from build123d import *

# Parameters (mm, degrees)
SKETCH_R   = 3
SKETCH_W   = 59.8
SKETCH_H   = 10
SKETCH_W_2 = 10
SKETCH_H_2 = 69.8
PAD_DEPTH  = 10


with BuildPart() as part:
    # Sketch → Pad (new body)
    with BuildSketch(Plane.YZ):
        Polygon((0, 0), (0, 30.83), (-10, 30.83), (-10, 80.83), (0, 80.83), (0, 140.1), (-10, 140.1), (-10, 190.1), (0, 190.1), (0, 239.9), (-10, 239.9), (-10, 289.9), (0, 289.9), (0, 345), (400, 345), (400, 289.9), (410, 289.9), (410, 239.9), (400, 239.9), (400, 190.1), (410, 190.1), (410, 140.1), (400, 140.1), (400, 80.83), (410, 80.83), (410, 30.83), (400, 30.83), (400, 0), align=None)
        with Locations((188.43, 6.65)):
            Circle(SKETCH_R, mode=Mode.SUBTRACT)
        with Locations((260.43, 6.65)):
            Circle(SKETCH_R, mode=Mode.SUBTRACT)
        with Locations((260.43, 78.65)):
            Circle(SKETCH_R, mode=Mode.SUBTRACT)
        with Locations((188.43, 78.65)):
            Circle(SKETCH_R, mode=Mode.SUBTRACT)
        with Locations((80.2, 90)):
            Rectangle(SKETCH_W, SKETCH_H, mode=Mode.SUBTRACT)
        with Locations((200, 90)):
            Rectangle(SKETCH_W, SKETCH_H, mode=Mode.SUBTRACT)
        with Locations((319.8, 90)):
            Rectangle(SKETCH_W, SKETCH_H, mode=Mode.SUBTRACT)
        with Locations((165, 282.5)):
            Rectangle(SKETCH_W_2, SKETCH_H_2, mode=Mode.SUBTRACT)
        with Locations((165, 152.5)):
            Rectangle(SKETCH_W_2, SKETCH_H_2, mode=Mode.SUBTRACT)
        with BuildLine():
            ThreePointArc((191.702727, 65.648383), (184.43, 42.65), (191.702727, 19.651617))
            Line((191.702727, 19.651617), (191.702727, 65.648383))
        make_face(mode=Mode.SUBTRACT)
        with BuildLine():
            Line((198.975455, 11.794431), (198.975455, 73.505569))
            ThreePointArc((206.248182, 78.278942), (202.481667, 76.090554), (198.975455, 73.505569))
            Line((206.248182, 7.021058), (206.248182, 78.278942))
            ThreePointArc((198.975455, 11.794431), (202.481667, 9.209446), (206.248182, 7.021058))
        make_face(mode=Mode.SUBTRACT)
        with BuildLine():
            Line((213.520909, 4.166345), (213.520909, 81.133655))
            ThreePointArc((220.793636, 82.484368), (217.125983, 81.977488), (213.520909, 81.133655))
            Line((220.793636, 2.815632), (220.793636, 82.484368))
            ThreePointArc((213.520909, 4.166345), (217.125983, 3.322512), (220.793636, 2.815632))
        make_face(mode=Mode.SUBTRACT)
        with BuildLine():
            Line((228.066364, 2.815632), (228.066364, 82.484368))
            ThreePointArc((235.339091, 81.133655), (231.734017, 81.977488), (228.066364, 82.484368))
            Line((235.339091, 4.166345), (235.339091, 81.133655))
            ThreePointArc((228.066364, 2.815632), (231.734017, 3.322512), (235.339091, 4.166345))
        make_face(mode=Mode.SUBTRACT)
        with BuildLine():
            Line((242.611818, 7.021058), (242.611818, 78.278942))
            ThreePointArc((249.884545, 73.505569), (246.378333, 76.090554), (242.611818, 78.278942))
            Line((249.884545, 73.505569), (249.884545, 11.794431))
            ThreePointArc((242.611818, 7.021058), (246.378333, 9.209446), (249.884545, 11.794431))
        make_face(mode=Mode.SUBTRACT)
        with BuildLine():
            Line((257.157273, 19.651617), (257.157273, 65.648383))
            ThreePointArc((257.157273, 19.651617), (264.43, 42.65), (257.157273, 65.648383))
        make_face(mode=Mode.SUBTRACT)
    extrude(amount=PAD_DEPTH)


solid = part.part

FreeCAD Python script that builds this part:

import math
import FreeCAD as App
import Part
import Sketcher


def add_polygon(sketch, points):
    """Adds a closed chain of lines whose ends are joined by coincident constraints."""
    first, n = sketch.GeometryCount, len(points)
    for a, b in zip(points, points[1:] + points[:1]):
        sketch.addGeometry(Part.LineSegment(App.Vector(*a, 0), App.Vector(*b, 0)), False)
    for i in range(n):
        sketch.addConstraint(Sketcher.Constraint("Coincident", first + i, 2, first + (i + 1) % n, 1))

doc = App.newDocument("Part")
body = doc.addObject("PartDesign::Body", "Body")

sketch1 = body.newObject("Sketcher::SketchObject", "Sketch")
sketch1.AttachmentSupport = (doc.getObject("YZ_Plane"), [""])
sketch1.MapMode = "FlatFace"
add_polygon(sketch1, [(0, 30.8), (0, 0), (400, 0), (400, 30.8), (410, 30.8), (410, 80.8), (400, 80.8), (400, 140.1), (410, 140.1), (410, 190.1), (400, 190.1), (400, 239.9), (410, 239.9), (410, 289.9), (400, 289.9), (400, 345), (0, 345), (0, 289.9), (-10, 289.9), (-10, 239.9), (0, 239.9), (0, 190.1), (-10, 190.1), (-10, 140.1), (0, 140.1), (0, 80.8), (-10, 80.8), (-10, 30.8)])
sketch1.addGeometry(Part.Circle(App.Vector(260.4, 6.7, 0), App.Vector(0, 0, 1), 3), False)
sketch1.addGeometry(Part.LineSegment(App.Vector(257.2, 19.7, 0), App.Vector(257.2, 65.6, 0)), False)
sketch1.addGeometry(Part.ArcOfCircle(Part.Circle(App.Vector(224.4, 42.6, 0), App.Vector(0, 0, 1), 40), math.radians(-35), math.radians(35)), False)
sketch1.addGeometry(Part.LineSegment(App.Vector(242.6, 7, 0), App.Vector(242.6, 78.3, 0)), False)
sketch1.addGeometry(Part.ArcOfCircle(Part.Circle(App.Vector(224.4, 42.6, 0), App.Vector(0, 0, 1), 40), math.radians(50.48), math.radians(62.96)), False)
sketch1.addGeometry(Part.LineSegment(App.Vector(249.9, 73.5, 0), App.Vector(249.9, 11.8, 0)), False)
sketch1.addGeometry(Part.ArcOfCircle(Part.Circle(App.Vector(224.4, 42.7, 0), App.Vector(0, 0, 1), 40), math.radians(-62.96), math.radians(-50.48)), False)
sketch1.addGeometry(Part.Circle(App.Vector(260.4, 78.7, 0), App.Vector(0, 0, 1), 3), False)
sketch1.addGeometry(Part.LineSegment(App.Vector(228.1, 2.8, 0), App.Vector(228.1, 82.5, 0)), False)
sketch1.addGeometry(Part.ArcOfCircle(Part.Circle(App.Vector(224.4, 42.6, 0), App.Vector(0, 0, 1), 40), math.radians(74.17), math.radians(84.78)), False)
sketch1.addGeometry(Part.LineSegment(App.Vector(235.3, 81.1, 0), App.Vector(235.3, 4.2, 0)), False)
sketch1.addGeometry(Part.ArcOfCircle(Part.Circle(App.Vector(224.4, 42.7, 0), App.Vector(0, 0, 1), 40), math.radians(-84.78), math.radians(-74.17)), False)
sketch1.addGeometry(Part.LineSegment(App.Vector(213.5, 4.2, 0), App.Vector(213.5, 81.1, 0)), False)
sketch1.addGeometry(Part.ArcOfCircle(Part.Circle(App.Vector(224.4, 42.6, 0), App.Vector(0, 0, 1), 40), math.radians(95.22), math.radians(105.83)), False)
sketch1.addGeometry(Part.LineSegment(App.Vector(220.8, 82.5, 0), App.Vector(220.8, 2.8, 0)), False)
sketch1.addGeometry(Part.ArcOfCircle(Part.Circle(App.Vector(224.4, 42.7, 0), App.Vector(0, 0, 1), 40), math.radians(-105.83), math.radians(-95.22)), False)
sketch1.addGeometry(Part.LineSegment(App.Vector(199, 11.8, 0), App.Vector(199, 73.5, 0)), False)
sketch1.addGeometry(Part.ArcOfCircle(Part.Circle(App.Vector(224.4, 42.6, 0), App.Vector(0, 0, 1), 40), math.radians(117.04), math.radians(129.52)), False)
sketch1.addGeometry(Part.LineSegment(App.Vector(206.2, 78.3, 0), App.Vector(206.2, 7, 0)), False)
sketch1.addGeometry(Part.ArcOfCircle(Part.Circle(App.Vector(224.4, 42.7, 0), App.Vector(0, 0, 1), 40), math.radians(-129.52), math.radians(-117.04)), False)
add_polygon(sketch1, [(289.9, 85), (289.9, 95), (349.7, 95), (349.7, 85)])
sketch1.addGeometry(Part.Circle(App.Vector(188.4, 6.7, 0), App.Vector(0, 0, 1), 3), False)
sketch1.addGeometry(Part.LineSegment(App.Vector(191.7, 65.6, 0), App.Vector(191.7, 19.7, 0)), False)
sketch1.addGeometry(Part.ArcOfCircle(Part.Circle(App.Vector(224.4, 42.6, 0), App.Vector(0, 0, 1), 40), math.radians(145), math.radians(215)), False)
sketch1.addGeometry(Part.Circle(App.Vector(188.4, 78.7, 0), App.Vector(0, 0, 1), 3), False)
add_polygon(sketch1, [(170.1, 85), (170.1, 95), (229.9, 95), (229.9, 85)])
add_polygon(sketch1, [(160, 117.6), (160, 187.4), (170, 187.4), (170, 117.6)])
add_polygon(sketch1, [(50.3, 85), (50.3, 95), (110.1, 95), (110.1, 85)])
add_polygon(sketch1, [(160, 247.6), (160, 317.4), (170, 317.4), (170, 247.6)])
sketch1.addConstraint([
    Sketcher.Constraint("Coincident", 29, 1, 30, 1),
    Sketcher.Constraint("Coincident", 30, 2, 29, 2),
    Sketcher.Constraint("Coincident", 31, 2, 32, 2),
    Sketcher.Constraint("Coincident", 32, 1, 33, 1),
    Sketcher.Constraint("Coincident", 33, 2, 34, 2),
    Sketcher.Constraint("Coincident", 34, 1, 31, 1),
    Sketcher.Constraint("Coincident", 36, 2, 37, 2),
    Sketcher.Constraint("Coincident", 37, 1, 38, 1),
    Sketcher.Constraint("Coincident", 38, 2, 39, 2),
    Sketcher.Constraint("Coincident", 39, 1, 36, 1),
    Sketcher.Constraint("Coincident", 40, 2, 41, 2),
    Sketcher.Constraint("Coincident", 41, 1, 42, 1),
    Sketcher.Constraint("Coincident", 42, 2, 43, 2),
    Sketcher.Constraint("Coincident", 43, 1, 40, 1),
    Sketcher.Constraint("Coincident", 44, 2, 45, 2),
    Sketcher.Constraint("Coincident", 45, 1, 46, 1),
    Sketcher.Constraint("Coincident", 46, 2, 47, 2),
    Sketcher.Constraint("Coincident", 47, 1, 44, 1),
    Sketcher.Constraint("Coincident", 53, 1, 54, 1),
    Sketcher.Constraint("Coincident", 54, 2, 53, 2),
    Sketcher.Constraint("Vertical", 0),
    Sketcher.Constraint("Horizontal", 1),
    Sketcher.Constraint("Vertical", 2),
    Sketcher.Constraint("Horizontal", 3),
    Sketcher.Constraint("Vertical", 4),
    Sketcher.Constraint("Horizontal", 5),
    Sketcher.Constraint("Vertical", 6),
    Sketcher.Constraint("Horizontal", 7),
    Sketcher.Constraint("Vertical", 8),
    Sketcher.Constraint("Horizontal", 9),
    Sketcher.Constraint("Vertical", 10),
    Sketcher.Constraint("Horizontal", 11),
    Sketcher.Constraint("Vertical", 12),
    Sketcher.Constraint("Horizontal", 13),
    Sketcher.Constraint("Vertical", 14),
    Sketcher.Constraint("Horizontal", 15),
    Sketcher.Constraint("Vertical", 16),
    Sketcher.Constraint("Horizontal", 17),
    Sketcher.Constraint("Vertical", 18),
    Sketcher.Constraint("Horizontal", 19),
    Sketcher.Constraint("Vertical", 20),
    Sketcher.Constraint("Horizontal", 21),
    Sketcher.Constraint("Vertical", 22),
    Sketcher.Constraint("Horizontal", 23),
    Sketcher.Constraint("Vertical", 24),
    Sketcher.Constraint("Horizontal", 25),
    Sketcher.Constraint("Vertical", 26),
    Sketcher.Constraint("Horizontal", 27),
    Sketcher.Constraint("Vertical", 29),
    Sketcher.Constraint("Vertical", 31),
    Sketcher.Constraint("Vertical", 33),
    Sketcher.Constraint("Vertical", 36),
    Sketcher.Constraint("Vertical", 38),
    Sketcher.Constraint("Vertical", 40),
    Sketcher.Constraint("Vertical", 42),
    Sketcher.Constraint("Vertical", 44),
    Sketcher.Constraint("Vertical", 46),
    Sketcher.Constraint("Vertical", 48),
    Sketcher.Constraint("Horizontal", 49),
    Sketcher.Constraint("Vertical", 50),
    Sketcher.Constraint("Horizontal", 51),
    Sketcher.Constraint("Vertical", 53),
    Sketcher.Constraint("Vertical", 56),
    Sketcher.Constraint("Horizontal", 57),
    Sketcher.Constraint("Vertical", 58),
    Sketcher.Constraint("Horizontal", 59),
    Sketcher.Constraint("Vertical", 60),
    Sketcher.Constraint("Horizontal", 61),
    Sketcher.Constraint("Vertical", 62),
    Sketcher.Constraint("Horizontal", 63),
    Sketcher.Constraint("Vertical", 64),
    Sketcher.Constraint("Horizontal", 65),
    Sketcher.Constraint("Vertical", 66),
    Sketcher.Constraint("Horizontal", 67),
    Sketcher.Constraint("Vertical", 68),
    Sketcher.Constraint("Horizontal", 69),
    Sketcher.Constraint("Vertical", 70),
    Sketcher.Constraint("Horizontal", 71),
    Sketcher.Constraint("Coincident", 0, 2, -1, 1),
    Sketcher.Constraint("Coincident", 54, 3, 30, 3),
    Sketcher.Constraint("Equal", 32, 34),
    Sketcher.Constraint("Equal", 28, 35),
    Sketcher.Constraint("Equal", 37, 39),
    Sketcher.Constraint("Equal", 39, 41),
    Sketcher.Constraint("Equal", 41, 43),
    Sketcher.Constraint("Equal", 34, 45),
    Sketcher.Constraint("Equal", 45, 47),
    Sketcher.Constraint("Equal", 35, 52),
    Sketcher.Constraint("Equal", 30, 54),
    Sketcher.Constraint("Equal", 52, 55),
    Sketcher.Constraint("PointOnObject", 15, 2, -2),
    Sketcher.Constraint("PointOnObject", 19, 2, -2),
    Sketcher.Constraint("PointOnObject", 23, 2, -2),
    Sketcher.Constraint("Horizontal", 37, 3, 41, 3),
    Sketcher.Constraint("Horizontal", 39, 3, 43, 3),
    Sketcher.Constraint("Horizontal", 32, 3, 45, 3),
    Sketcher.Constraint("Horizontal", 34, 3, 47, 3),
    Sketcher.Constraint("Horizontal", 28, 3, 52, 3),
    Sketcher.Constraint("Horizontal", 35, 3, 55, 3),
    Sketcher.Constraint("Horizontal", 13, 2, 16, 2),
    Sketcher.Constraint("Horizontal", 11, 2, 18, 2),
    Sketcher.Constraint("Horizontal", 9, 2, 20, 2),
    Sketcher.Constraint("Horizontal", 7, 2, 22, 2),
    Sketcher.Constraint("Horizontal", 5, 2, 24, 2),
    Sketcher.Constraint("Horizontal", 3, 2, 26, 2),
    Sketcher.Constraint("Horizontal", 37, 1, 40, 2),
    Sketcher.Constraint("Horizontal", 36, 2, 41, 1),
    Sketcher.Constraint("Horizontal", 39, 1, 42, 2),
    Sketcher.Constraint("Horizontal", 32, 1, 44, 2),
    Sketcher.Constraint("Horizontal", 31, 2, 45, 1),
    Sketcher.Constraint("Horizontal", 34, 1, 46, 2),
    Sketcher.Constraint("Horizontal", 30, 2, 53, 1),
    Sketcher.Constraint("Horizontal", 49, 2, 56, 2),
    Sketcher.Constraint("Horizontal", 51, 2, 58, 2),
    Sketcher.Constraint("Horizontal", 57, 2, 64, 2),
    Sketcher.Constraint("Horizontal", 59, 2, 66, 2),
    Sketcher.Constraint("Vertical", 32, 3, 34, 3),
    Sketcher.Constraint("Vertical", 28, 3, 35, 3),
    Sketcher.Constraint("Vertical", 37, 3, 39, 3),
    Sketcher.Constraint("Vertical", 52, 3, 55, 3),
    Sketcher.Constraint("Vertical", 2, 2, 5, 2),
    Sketcher.Constraint("Vertical", 4, 2, 7, 2),
    Sketcher.Constraint("Vertical", 6, 2, 9, 2),
    Sketcher.Constraint("Vertical", 8, 2, 11, 2),
    Sketcher.Constraint("Vertical", 10, 2, 13, 2),
    Sketcher.Constraint("Vertical", 18, 2, 21, 2),
    Sketcher.Constraint("Vertical", 22, 2, 25, 2),
    Sketcher.Constraint("Vertical", 63, 2, 68, 2),
    Sketcher.Constraint("Vertical", 62, 2, 69, 2),
    Sketcher.Constraint("Equal", 13, 17),
    Sketcher.Constraint("Equal", 51, 57),
    Sketcher.Constraint("Equal", 27, 61),
    Sketcher.Constraint("Equal", 59, 65),
    Sketcher.Constraint("Equal", 4, 8),
    Sketcher.Constraint("Equal", 8, 12),
    Sketcher.Constraint("Equal", 71, 48),
    Sketcher.Constraint("Equal", 62, 68),
    Sketcher.Constraint("Diameter", 28, 6.0),
    Sketcher.Constraint("Radius", 30, 40.000001),
    Sketcher.Constraint("DistanceX", 1, 1, 1, 2, 400.0),
    Sketcher.Constraint("DistanceX", 3, 1, 3, 2, 10.0),
    Sketcher.Constraint("DistanceY", 4, 1, 4, 2, 50.0),
    Sketcher.Constraint("DistanceX", 49, 1, 49, 2, 59.8),
    Sketcher.Constraint("DistanceY", 10, 1, 10, 2, 49.8),
    Sketcher.Constraint("DistanceY", 14, 1, 14, 2, 55.1),
    Sketcher.Constraint("DistanceY", 60, 1, 60, 2, 69.8),
    Sketcher.Constraint("DistanceY", -1, 1, 14, 2, 345.0),
    Sketcher.Constraint("DistanceY", -1, 1, 48, 2, 95.0),
    Sketcher.Constraint("DistanceX", -1, 1, 60, 2, 160.0),
    Sketcher.Constraint("DistanceY", 0, 2, 0, 1, 30.83),
    Sketcher.Constraint("DistanceX", -1, 1, 48, 2, 289.9),
    Sketcher.Constraint("DistanceX", -1, 1, 56, 2, 170.1),
    Sketcher.Constraint("DistanceY", -1, 1, 60, 2, 187.4),
    Sketcher.Constraint("DistanceX", -1, 1, 64, 2, 50.3),
    Sketcher.Constraint("DistanceY", -1, 1, 68, 2, 317.4),
    Sketcher.Constraint("DistanceX", -1, 1, 28, 3, 260.43),
    Sketcher.Constraint("DistanceY", -1, 1, 28, 3, 6.65),
    Sketcher.Constraint("DistanceX", -1, 1, 30, 3, 224.429999),
    Sketcher.Constraint("DistanceY", -1, 1, 30, 3, 42.65),
    Sketcher.Constraint("DistanceY", -1, 1, 35, 3, 78.65),
    Sketcher.Constraint("DistanceX", -1, 1, 52, 3, 188.43),
    Sketcher.Constraint("Radius", 32, 40.00007),
    Sketcher.Constraint("Radius", 37, 40.000047),
    Sketcher.Constraint("DistanceY", 38, 2, 38, 1, 76.96731),
    Sketcher.Constraint("DistanceY", 29, 1, 29, 2, 45.996766),
    Sketcher.Constraint("DistanceY", 31, 1, 31, 2, 71.257884),
    Sketcher.Constraint("DistanceY", 33, 2, 33, 1, 61.711138),
    Sketcher.Constraint("DistanceY", 36, 1, 36, 2, 79.668736),
    Sketcher.Constraint("DistanceX", -1, 1, 32, 3, 224.429961),
    Sketcher.Constraint("DistanceY", -1, 1, 32, 3, 42.649942),
    Sketcher.Constraint("DistanceY", -1, 1, 34, 3, 42.650058),
    Sketcher.Constraint("DistanceX", -1, 1, 37, 3, 224.429988),
    Sketcher.Constraint("DistanceX", -1, 1, 41, 3, 224.430012),
    Sketcher.Constraint("DistanceX", -1, 1, 45, 3, 224.430039),
    Sketcher.Constraint("DistanceY", -1, 1, 36, 2, 82.484368),
    Sketcher.Constraint("DistanceX", -1, 1, 37, 1, 235.339091),
])
pad1 = body.newObject("PartDesign::Pad", "Pad")
pad1.Profile = sketch1
pad1.Length = 10

doc.recompute()
